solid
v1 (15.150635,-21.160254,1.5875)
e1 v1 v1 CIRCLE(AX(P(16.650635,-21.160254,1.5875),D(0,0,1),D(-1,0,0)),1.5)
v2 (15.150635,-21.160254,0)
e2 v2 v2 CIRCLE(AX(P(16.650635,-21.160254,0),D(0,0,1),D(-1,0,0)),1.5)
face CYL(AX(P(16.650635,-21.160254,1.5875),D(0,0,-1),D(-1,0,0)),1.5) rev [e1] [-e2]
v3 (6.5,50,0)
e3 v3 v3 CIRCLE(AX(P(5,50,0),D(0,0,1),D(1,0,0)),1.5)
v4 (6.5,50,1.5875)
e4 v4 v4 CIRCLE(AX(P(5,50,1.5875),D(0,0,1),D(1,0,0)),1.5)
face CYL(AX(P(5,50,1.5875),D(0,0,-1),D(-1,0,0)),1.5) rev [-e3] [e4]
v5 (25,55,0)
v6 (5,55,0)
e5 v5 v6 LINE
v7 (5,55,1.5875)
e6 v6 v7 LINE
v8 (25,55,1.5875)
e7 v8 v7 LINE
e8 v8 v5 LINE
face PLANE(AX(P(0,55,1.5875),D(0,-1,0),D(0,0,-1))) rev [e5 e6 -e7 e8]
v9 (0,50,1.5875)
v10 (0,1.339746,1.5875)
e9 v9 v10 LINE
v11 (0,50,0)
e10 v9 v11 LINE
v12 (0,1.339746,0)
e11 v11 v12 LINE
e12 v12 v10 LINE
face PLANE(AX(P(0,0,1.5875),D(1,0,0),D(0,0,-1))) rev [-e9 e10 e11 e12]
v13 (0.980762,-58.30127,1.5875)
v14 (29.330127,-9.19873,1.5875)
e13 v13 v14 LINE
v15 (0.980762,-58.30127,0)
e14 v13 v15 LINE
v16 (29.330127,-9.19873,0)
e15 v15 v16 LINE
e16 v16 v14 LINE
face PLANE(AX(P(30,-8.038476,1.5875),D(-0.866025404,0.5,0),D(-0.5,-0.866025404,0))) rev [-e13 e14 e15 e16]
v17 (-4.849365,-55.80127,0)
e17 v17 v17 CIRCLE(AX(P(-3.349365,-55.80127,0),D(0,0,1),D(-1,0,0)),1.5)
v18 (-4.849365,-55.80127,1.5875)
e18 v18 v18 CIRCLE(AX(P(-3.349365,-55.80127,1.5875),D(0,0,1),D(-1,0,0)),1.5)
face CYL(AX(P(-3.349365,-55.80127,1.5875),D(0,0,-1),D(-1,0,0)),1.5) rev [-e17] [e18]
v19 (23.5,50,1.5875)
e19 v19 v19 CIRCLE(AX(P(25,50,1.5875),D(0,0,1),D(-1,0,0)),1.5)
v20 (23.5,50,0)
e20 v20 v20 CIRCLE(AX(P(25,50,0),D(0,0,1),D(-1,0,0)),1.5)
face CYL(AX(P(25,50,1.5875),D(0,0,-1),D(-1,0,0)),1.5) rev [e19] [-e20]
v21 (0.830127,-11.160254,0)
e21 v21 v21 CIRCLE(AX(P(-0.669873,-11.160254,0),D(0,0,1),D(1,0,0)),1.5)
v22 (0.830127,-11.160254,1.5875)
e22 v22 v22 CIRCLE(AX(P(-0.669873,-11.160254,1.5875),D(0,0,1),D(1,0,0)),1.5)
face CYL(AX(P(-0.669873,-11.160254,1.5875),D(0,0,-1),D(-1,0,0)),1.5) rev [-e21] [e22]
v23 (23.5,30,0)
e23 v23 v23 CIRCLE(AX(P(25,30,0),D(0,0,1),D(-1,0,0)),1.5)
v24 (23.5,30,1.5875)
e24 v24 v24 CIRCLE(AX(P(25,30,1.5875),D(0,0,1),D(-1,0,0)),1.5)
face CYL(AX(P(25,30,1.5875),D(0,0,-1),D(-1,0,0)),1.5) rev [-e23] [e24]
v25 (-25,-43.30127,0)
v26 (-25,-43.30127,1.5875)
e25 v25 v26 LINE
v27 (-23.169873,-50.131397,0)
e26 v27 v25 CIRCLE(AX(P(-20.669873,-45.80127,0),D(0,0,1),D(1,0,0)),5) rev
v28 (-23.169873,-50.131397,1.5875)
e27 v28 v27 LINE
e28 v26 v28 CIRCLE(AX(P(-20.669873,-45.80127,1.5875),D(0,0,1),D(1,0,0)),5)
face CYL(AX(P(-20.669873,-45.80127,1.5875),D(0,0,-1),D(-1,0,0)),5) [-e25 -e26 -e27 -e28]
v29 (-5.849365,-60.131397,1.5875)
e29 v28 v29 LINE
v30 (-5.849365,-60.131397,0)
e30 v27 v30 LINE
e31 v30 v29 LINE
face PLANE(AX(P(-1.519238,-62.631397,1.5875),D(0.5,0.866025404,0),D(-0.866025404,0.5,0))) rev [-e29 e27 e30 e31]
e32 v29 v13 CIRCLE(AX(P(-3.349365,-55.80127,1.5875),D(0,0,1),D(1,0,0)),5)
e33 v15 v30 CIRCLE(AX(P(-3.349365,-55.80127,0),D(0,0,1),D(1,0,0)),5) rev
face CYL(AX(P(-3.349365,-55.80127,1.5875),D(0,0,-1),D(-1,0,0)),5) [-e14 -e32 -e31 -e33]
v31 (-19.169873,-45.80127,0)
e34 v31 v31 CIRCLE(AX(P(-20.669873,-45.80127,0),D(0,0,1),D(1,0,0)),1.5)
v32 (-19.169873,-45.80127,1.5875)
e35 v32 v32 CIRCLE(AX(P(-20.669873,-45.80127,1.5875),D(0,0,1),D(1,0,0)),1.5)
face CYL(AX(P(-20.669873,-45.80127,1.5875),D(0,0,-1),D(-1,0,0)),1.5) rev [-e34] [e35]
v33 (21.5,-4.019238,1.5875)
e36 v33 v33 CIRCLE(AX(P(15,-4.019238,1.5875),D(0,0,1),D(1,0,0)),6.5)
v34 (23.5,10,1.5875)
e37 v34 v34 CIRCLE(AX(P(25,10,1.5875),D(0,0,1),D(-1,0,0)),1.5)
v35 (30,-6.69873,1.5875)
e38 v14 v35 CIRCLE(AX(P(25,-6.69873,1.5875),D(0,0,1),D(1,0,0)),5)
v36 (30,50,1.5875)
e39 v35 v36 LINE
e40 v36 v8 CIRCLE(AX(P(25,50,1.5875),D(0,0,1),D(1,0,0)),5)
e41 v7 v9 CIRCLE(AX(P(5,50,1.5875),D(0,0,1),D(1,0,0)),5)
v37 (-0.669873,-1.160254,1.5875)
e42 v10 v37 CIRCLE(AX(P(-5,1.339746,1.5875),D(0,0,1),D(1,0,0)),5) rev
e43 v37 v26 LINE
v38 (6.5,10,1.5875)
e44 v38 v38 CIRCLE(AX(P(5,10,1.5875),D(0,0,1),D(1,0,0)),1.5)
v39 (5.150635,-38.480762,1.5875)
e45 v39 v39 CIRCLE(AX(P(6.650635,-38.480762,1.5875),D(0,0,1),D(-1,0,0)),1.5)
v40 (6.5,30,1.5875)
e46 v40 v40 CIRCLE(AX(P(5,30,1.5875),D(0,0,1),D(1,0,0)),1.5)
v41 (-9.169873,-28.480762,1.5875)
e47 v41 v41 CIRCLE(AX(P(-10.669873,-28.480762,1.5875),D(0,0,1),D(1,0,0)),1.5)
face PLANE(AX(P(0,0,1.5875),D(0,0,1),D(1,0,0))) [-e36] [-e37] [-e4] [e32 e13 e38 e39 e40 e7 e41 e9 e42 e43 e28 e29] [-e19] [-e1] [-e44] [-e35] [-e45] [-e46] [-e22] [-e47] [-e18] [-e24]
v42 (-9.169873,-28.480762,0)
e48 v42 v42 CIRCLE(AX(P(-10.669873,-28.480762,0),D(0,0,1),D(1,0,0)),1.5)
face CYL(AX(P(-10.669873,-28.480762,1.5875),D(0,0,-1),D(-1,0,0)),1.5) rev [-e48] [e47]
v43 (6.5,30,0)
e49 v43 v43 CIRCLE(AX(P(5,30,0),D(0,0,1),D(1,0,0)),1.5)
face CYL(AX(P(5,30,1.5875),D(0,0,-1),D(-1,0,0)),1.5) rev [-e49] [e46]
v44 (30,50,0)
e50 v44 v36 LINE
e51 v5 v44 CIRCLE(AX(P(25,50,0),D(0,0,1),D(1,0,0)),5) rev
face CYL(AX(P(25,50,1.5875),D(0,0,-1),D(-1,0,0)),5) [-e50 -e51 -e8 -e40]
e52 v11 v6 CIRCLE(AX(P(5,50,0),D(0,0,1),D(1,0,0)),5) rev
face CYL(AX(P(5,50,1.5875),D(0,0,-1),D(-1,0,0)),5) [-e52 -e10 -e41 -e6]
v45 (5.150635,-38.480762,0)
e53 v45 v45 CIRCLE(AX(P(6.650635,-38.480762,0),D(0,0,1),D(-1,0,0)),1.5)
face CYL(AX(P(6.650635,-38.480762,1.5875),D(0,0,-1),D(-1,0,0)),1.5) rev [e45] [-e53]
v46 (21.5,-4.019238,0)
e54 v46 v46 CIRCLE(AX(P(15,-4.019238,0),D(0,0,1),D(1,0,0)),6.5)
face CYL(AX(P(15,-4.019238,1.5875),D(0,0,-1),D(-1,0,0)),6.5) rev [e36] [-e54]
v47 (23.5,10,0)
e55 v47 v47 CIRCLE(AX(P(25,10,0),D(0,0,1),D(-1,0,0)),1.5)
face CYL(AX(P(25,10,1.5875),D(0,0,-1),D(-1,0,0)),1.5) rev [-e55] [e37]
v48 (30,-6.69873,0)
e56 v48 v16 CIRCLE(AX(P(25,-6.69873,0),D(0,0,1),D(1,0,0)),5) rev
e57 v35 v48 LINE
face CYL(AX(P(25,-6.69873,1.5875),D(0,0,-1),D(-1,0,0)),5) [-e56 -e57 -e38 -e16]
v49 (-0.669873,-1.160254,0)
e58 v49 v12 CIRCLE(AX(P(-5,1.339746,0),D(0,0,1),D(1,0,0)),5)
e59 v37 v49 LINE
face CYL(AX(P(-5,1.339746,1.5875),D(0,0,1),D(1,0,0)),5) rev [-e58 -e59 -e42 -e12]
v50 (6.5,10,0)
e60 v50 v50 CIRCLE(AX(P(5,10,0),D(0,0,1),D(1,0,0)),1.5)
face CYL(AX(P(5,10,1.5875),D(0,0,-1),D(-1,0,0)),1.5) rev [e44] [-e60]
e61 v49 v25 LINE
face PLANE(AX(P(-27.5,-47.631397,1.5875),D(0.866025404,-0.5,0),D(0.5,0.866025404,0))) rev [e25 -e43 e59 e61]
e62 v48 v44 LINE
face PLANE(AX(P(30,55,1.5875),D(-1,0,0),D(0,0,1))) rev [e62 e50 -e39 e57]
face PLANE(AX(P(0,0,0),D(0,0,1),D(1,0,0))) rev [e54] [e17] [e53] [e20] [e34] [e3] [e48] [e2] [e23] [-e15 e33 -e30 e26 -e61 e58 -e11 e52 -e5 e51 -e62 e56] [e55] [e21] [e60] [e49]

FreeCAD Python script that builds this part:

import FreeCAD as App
import Part
import Sketcher

V = App.Vector
Q = App.Units.Quantity


def edges_at(feature, points):
    """Names of the edges that pass closest to the given points."""
    edges = feature.Shape.Edges
    near = lambda p: min(range(len(edges)), key=lambda i: edges[i].distToShape(Part.Vertex(*p))[0])
    return sorted({f"Edge{near(p) + 1}" for p in points})

doc = App.newDocument("Part")
body = doc.addObject("PartDesign::Body", "Body")

sketch1 = body.newObject("Sketcher::SketchObject", "Sketch")
sketch1.AttachmentSupport = (doc.getObject("XY_Plane"), [""])
sketch1.MapMode = "FlatFace"
sketch1.addGeometry([
    Part.LineSegment(V(0, 55, 0), V(0, 0, 0)),
    Part.LineSegment(V(0, 0, 0), V(-27.5, -47.631397, 0)),
    Part.LineSegment(V(-27.5, -47.631397, 0), V(-1.519238, -62.631397, 0)),
    Part.LineSegment(V(-1.519238, -62.631397, 0), V(30, -8.038476, 0)),
    Part.LineSegment(V(30, -8.038476, 0), V(30, 55, 0)),
    Part.LineSegment(V(30, 55, 0), V(0, 55, 0)),
    Part.Circle(V(6.650635, -38.480762, 0), V(0, 0, 1), 1.5),
    Part.Circle(V(16.650635, -21.160254, 0), V(0, 0, 1), 1.5),
    Part.Circle(V(15, -4.019238, 0), V(0, 0, 1), 6.5),
    Part.Circle(V(-3.349365, -55.80127, 0), V(0, 0, 1), 1.5),
    Part.Circle(V(-20.669873, -45.80127, 0), V(0, 0, 1), 1.5),
    Part.Circle(V(-0.669873, -11.160254, 0), V(0, 0, 1), 1.5),
    Part.Circle(V(-10.669873, -28.480762, 0), V(0, 0, 1), 1.5),
    Part.Circle(V(25, 10, 0), V(0, 0, 1), 1.5),
    Part.Circle(V(5, 10, 0), V(0, 0, 1), 1.5),
    Part.Circle(V(25, 30, 0), V(0, 0, 1), 1.5),
    Part.Circle(V(25, 50, 0), V(0, 0, 1), 1.5),
    Part.Circle(V(5, 30, 0), V(0, 0, 1), 1.5),
    Part.Circle(V(5, 50, 0), V(0, 0, 1), 1.5),
], False)
sketch1.addConstraint([
    Sketcher.Constraint("Coincident", 0, 2, 1, 1),
    Sketcher.Constraint("Coincident", 1, 2, 2, 1),
    Sketcher.Constraint("Coincident", 2, 2, 3, 1),
    Sketcher.Constraint("Coincident", 3, 2, 4, 1),
    Sketcher.Constraint("Coincident", 4, 2, 5, 1),
    Sketcher.Constraint("Coincident", 5, 2, 0, 1),
    Sketcher.Constraint("Vertical", 0),
    Sketcher.Constraint("Vertical", 4),
    Sketcher.Constraint("Horizontal", 5),
    Sketcher.Constraint("Coincident", 0, 2, -1, 1),
    Sketcher.Constraint("Equal", 6, 7),
    Sketcher.Constraint("Equal", 7, 9),
    Sketcher.Constraint("Equal", 9, 10),
    Sketcher.Constraint("Equal", 10, 11),
    Sketcher.Constraint("Equal", 11, 12),
    Sketcher.Constraint("Equal", 12, 13),
    Sketcher.Constraint("Equal", 13, 14),
    Sketcher.Constraint("Equal", 14, 15),
    Sketcher.Constraint("Equal", 15, 16),
    Sketcher.Constraint("Equal", 16, 17),
    Sketcher.Constraint("Equal", 17, 18),
    Sketcher.Constraint("Perpendicular", 1, 2),
    Sketcher.Constraint("Perpendicular", 2, 3),
    Sketcher.Constraint("Horizontal", 13, 3, 14, 3),
    Sketcher.Constraint("Horizontal", 15, 3, 17, 3),
    Sketcher.Constraint("Horizontal", 16, 3, 18, 3),
    Sketcher.Constraint("Vertical", 13, 3, 15, 3),
    Sketcher.Constraint("Vertical", 15, 3, 16, 3),
    Sketcher.Constraint("Vertical", 14, 3, 17, 3),
    Sketcher.Constraint("Vertical", 17, 3, 18, 3),
    Sketcher.Constraint("Diameter", 6, 3.0),
    Sketcher.Constraint("Diameter", 8, 13.0),
    Sketcher.Constraint("DistanceX", 5, 2, 5, 1, 30.0),
    Sketcher.Constraint("DistanceY", 0, 2, 0, 1, 55.0),
    Sketcher.Constraint("Angle", 1, Q("-120 deg")),
    Sketcher.Constraint("Distance", 1, 55.0),
    Sketcher.Constraint("Distance", 2, 30.0),
    Sketcher.Constraint("DistanceX", -1, 1, 8, 3, 15.0),
    Sketcher.Constraint("DistanceX", -1, 1, 13, 3, 25.0),
    Sketcher.Constraint("DistanceY", -1, 1, 13, 3, 10.0),
    Sketcher.Constraint("DistanceX", -1, 1, 14, 3, 5.0),
    Sketcher.Constraint("DistanceY", -1, 1, 15, 3, 30.0),
    Sketcher.Constraint("DistanceY", -1, 1, 16, 3, 50.0),
    Sketcher.Constraint("DistanceX", 6, 3, 7, 3, 10.0),
    Sketcher.Constraint("DistanceX", 9, 3, 6, 3, 10.0),
    Sketcher.Constraint("DistanceY", 9, 3, 10, 3, 10.0),
    Sketcher.Constraint("DistanceY", 7, 3, 11, 3, 10.0),
    Sketcher.Constraint("DistanceX", 10, 3, 11, 3, 20.0),
    Sketcher.Constraint("DistanceX", 10, 3, 12, 3, 10.0),
    Sketcher.Constraint("DistanceY", 6, 3, 12, 3, 10.0),
    Sketcher.Constraint("DistanceY", 9, 3, -1, 1, 55.80127),
    Sketcher.Constraint("DistanceY", 6, 3, 7, 3, 17.320508),
    Sketcher.Constraint("DistanceY", 9, 3, 6, 3, 17.320508),
    Sketcher.Constraint("DistanceX", 10, 3, 9, 3, 17.320508),
    Sketcher.Constraint("DistanceX", -1, 1, 6, 3, 6.650635),
    Sketcher.Constraint("DistanceY", 8, 3, -1, 1, 4.019238),
])
pad1 = body.newObject("PartDesign::Pad", "Pad")
pad1.Profile = sketch1
pad1.Length = 1.5875
doc.recompute()

fillet = body.newObject("PartDesign::Fillet", "Fillet")
fillet.Base = (pad1, edges_at(pad1, [
    (0, 0, 0.794),
    (0, 55, 0.794),
    (30, 55, 0.794),
    (30, -8.038, 0.794),
    (-1.519, -62.631, 0.794),
    (-27.5, -47.631, 0.794),
]))
fillet.Radius = 5

doc.recompute()
